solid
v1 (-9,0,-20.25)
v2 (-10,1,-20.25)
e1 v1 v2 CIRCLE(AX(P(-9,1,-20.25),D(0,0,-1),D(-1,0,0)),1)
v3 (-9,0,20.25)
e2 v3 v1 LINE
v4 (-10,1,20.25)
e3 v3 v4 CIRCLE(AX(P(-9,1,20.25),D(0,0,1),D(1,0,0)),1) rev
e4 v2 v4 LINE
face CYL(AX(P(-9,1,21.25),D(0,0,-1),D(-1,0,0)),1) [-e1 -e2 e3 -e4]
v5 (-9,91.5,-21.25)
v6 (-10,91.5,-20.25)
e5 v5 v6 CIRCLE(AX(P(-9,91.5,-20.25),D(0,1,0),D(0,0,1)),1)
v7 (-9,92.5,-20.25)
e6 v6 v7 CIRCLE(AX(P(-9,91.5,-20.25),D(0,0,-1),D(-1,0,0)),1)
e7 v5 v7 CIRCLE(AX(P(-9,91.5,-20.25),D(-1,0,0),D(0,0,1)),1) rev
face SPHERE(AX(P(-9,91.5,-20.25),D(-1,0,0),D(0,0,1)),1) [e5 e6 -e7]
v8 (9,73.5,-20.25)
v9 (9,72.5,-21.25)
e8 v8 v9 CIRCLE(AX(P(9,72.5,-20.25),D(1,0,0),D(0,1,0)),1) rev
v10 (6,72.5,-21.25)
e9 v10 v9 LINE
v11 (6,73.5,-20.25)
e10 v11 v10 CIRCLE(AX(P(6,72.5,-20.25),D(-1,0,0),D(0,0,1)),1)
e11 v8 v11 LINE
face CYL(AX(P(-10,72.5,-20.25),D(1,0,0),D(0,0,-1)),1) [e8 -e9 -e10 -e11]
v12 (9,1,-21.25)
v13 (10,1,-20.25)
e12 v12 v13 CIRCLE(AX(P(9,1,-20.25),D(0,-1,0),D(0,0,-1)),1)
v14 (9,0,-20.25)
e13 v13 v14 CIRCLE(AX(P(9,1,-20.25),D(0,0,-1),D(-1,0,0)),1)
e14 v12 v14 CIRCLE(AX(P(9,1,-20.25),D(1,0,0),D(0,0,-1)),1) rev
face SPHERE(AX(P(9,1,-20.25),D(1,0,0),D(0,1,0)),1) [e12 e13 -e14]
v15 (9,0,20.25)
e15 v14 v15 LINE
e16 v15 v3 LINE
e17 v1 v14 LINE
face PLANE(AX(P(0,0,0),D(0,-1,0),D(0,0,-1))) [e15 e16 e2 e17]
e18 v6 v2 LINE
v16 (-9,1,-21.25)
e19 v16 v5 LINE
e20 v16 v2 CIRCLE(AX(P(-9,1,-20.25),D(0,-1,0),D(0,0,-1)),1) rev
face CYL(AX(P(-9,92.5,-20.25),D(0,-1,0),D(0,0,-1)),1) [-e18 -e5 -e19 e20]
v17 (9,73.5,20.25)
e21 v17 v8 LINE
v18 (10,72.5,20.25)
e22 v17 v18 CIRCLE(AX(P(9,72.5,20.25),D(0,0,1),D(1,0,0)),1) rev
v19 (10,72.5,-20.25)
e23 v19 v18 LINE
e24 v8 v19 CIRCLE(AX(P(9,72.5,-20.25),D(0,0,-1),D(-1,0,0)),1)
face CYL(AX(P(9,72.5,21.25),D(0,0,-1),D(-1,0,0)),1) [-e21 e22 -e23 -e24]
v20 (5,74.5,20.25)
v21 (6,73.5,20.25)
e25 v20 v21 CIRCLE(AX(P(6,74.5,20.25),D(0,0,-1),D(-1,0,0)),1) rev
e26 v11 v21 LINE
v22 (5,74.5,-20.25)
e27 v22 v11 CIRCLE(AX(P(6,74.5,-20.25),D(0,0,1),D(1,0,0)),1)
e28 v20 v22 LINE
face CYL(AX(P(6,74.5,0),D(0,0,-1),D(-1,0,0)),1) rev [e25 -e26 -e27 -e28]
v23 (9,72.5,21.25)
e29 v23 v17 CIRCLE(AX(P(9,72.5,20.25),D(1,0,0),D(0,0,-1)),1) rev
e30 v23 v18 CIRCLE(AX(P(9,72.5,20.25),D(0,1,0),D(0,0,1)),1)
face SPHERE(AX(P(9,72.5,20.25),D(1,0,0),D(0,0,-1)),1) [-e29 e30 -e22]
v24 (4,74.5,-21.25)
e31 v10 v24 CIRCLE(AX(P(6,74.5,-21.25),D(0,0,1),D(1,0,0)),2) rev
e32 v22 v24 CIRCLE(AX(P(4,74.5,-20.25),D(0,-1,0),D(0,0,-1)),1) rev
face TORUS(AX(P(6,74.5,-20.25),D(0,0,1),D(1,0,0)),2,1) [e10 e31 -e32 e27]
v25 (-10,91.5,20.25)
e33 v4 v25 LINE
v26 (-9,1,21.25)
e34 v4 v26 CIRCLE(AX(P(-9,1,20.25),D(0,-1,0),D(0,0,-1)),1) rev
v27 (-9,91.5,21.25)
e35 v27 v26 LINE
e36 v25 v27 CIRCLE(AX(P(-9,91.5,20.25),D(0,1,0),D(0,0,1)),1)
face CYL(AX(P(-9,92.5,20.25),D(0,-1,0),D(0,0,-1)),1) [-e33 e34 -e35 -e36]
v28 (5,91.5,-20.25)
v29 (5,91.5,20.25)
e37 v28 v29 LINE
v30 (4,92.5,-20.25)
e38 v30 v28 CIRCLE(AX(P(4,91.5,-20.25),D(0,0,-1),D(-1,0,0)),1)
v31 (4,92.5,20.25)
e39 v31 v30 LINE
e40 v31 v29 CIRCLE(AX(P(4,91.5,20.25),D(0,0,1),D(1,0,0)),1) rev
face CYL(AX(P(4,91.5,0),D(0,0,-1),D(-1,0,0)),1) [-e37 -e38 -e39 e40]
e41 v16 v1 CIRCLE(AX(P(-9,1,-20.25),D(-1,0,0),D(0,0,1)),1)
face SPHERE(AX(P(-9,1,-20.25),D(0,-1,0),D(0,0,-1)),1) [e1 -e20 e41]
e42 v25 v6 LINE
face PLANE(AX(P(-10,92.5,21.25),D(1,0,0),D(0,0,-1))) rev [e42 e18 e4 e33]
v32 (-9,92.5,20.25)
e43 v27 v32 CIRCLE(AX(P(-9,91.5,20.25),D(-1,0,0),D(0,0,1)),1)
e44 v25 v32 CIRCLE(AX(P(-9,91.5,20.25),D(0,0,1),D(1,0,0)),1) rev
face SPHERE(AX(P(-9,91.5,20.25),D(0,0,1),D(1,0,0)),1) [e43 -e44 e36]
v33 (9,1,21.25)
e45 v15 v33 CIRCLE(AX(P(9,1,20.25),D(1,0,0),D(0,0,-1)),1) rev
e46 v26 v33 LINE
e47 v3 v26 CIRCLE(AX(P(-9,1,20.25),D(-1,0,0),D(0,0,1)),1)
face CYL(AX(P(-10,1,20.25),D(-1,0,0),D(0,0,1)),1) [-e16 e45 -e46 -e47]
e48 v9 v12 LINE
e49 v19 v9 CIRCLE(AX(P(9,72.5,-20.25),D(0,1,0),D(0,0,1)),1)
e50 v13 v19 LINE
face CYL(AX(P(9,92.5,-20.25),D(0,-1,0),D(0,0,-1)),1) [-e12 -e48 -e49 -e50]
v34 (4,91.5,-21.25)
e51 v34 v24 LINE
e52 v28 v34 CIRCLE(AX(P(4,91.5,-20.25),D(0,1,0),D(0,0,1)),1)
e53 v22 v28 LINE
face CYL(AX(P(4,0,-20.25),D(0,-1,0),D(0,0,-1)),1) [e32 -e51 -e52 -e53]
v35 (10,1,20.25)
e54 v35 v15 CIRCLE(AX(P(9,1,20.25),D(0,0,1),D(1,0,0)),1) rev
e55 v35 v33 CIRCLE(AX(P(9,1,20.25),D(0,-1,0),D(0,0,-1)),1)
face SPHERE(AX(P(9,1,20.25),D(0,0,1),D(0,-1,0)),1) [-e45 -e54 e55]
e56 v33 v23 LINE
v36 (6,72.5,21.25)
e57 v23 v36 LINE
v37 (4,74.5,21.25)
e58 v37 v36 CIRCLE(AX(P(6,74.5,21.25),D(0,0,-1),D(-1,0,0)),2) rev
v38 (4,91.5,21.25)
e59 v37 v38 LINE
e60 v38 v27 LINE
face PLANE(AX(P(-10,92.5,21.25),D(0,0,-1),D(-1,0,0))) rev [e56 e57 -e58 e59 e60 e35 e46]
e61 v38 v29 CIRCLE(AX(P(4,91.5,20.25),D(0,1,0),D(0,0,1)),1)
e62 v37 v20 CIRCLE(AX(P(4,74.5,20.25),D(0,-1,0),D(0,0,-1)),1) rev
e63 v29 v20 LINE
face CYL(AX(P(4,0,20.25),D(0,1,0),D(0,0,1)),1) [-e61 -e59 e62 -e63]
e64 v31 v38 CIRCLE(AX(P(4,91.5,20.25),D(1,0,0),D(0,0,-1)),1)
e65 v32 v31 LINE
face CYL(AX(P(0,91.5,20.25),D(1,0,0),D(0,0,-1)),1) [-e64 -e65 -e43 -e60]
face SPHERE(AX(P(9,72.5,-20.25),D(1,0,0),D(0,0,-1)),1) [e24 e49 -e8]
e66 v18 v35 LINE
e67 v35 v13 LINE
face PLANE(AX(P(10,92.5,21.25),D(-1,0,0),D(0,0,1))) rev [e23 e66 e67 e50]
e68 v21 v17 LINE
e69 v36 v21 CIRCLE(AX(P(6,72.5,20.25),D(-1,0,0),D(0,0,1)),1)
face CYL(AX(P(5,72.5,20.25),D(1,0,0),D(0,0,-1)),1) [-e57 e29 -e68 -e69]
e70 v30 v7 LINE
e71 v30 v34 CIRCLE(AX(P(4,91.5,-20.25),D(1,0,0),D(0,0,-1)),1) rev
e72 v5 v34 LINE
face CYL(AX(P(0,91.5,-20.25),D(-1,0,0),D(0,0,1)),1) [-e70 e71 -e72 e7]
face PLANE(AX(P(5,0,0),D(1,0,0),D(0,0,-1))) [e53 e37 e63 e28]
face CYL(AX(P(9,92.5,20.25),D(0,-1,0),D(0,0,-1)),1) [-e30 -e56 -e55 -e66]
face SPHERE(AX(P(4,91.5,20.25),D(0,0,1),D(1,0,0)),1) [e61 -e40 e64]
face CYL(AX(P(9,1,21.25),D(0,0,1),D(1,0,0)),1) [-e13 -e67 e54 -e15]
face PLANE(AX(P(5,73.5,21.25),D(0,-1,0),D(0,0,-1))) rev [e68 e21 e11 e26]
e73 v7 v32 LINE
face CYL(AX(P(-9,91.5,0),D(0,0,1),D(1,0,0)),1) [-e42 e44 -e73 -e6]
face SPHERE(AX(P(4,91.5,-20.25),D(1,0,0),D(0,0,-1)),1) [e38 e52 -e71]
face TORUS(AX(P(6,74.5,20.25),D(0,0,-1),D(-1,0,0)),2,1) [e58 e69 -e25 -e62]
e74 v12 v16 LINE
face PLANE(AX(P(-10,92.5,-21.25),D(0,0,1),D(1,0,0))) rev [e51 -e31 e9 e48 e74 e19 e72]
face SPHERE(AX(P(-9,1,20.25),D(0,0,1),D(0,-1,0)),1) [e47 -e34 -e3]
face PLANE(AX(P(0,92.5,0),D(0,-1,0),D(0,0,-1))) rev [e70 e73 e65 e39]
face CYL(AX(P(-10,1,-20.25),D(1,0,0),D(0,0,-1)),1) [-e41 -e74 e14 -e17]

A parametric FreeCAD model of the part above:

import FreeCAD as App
import Part
import Sketcher

V = App.Vector

doc = App.newDocument("Part")
body = doc.addObject("PartDesign::Body", "Body")

sketch1 = doc.addObject("Sketcher::SketchObject", "Sketch")
body.addObject(sketch1)
sketch1.AttachmentSupport = (doc.XZ_Plane, [""])
sketch1.MapMode = "FlatFace"
sketch1.addGeometry(Part.LineSegment(V(-10, -21, 0), V(-10, 21, 0)), False)
sketch1.addGeometry(Part.LineSegment(V(-10, 21, 0), V(10, 21, 0)), False)
sketch1.addGeometry(Part.LineSegment(V(10, 21, 0), V(10, -21, 0)), False)
sketch1.addGeometry(Part.LineSegment(V(10, -21, 0), V(-10, -21, 0)), False)
sketch1.addConstraint(Sketcher.Constraint("Coincident", 0, 2, 1, 1))
sketch1.addConstraint(Sketcher.Constraint("Coincident", 1, 2, 2, 1))
sketch1.addConstraint(Sketcher.Constraint("Coincident", 2, 2, 3, 1))
sketch1.addConstraint(Sketcher.Constraint("Coincident", 3, 2, 0, 1))
sketch1.addConstraint(Sketcher.Constraint("Vertical", 0))
sketch1.addConstraint(Sketcher.Constraint("Horizontal", 1))
sketch1.addConstraint(Sketcher.Constraint("Vertical", 2))
sketch1.addConstraint(Sketcher.Constraint("Horizontal", 3))
sketch1.addConstraint(Sketcher.Constraint("Symmetric", 0, 2, 2, 2, -1, 1))
sketch1.addConstraint(Sketcher.Constraint("DistanceX", 1, 1, 1, 2, 20.0))
sketch1.addConstraint(Sketcher.Constraint("DistanceY", 0, 1, 0, 2, 42.5))
pad1 = doc.addObject("PartDesign::Pad", "Pad")
body.addObject(pad1)
pad1.Profile = sketch1
pad1.Length = 92.5
pad1.Reversed = True

sketch2 = doc.addObject("Sketcher::SketchObject", "Sketch001")
body.addObject(sketch2)
sketch2.AttachmentSupport = (doc.YZ_Plane, [""])
sketch2.MapMode = "FlatFace"
sketch2.AttachmentOffset = App.Placement(V(0, 0, 10), App.Rotation())
sketch2.addGeometry(Part.LineSegment(V(92, 21, 0), V(74, 21, 0)), False)
sketch2.addGeometry(Part.LineSegment(V(74, 21, 0), V(74, -21, 0)), False)
sketch2.addGeometry(Part.LineSegment(V(74, -21, 0), V(92, -21, 0)), False)
sketch2.addGeometry(Part.LineSegment(V(92, -21, 0), V(92, 21, 0)), False)
sketch2.addConstraint(Sketcher.Constraint("Coincident", 0, 2, 1, 1))
sketch2.addConstraint(Sketcher.Constraint("Coincident", 1, 2, 2, 1))
sketch2.addConstraint(Sketcher.Constraint("Coincident", 2, 2, 3, 1))
sketch2.addConstraint(Sketcher.Constraint("Coincident", 3, 2, 0, 1))
sketch2.addConstraint(Sketcher.Constraint("Horizontal", 0))
sketch2.addConstraint(Sketcher.Constraint("Vertical", 1))
sketch2.addConstraint(Sketcher.Constraint("Horizontal", 2))
sketch2.addConstraint(Sketcher.Constraint("Vertical", 3))
sketch2.addConstraint(Sketcher.Constraint("DistanceX", 0, 2, 0, 1, 19.0))
sketch2.addConstraint(Sketcher.Constraint("DistanceY", 1, 2, 1, 1, 42.5))
sketch2.addConstraint(Sketcher.Constraint("DistanceX", -1, 1, 0, 2, 73.5))
sketch2.addConstraint(Sketcher.Constraint("DistanceY", -1, 1, 0, 2, 21.25))
pocket1 = doc.addObject("PartDesign::Pocket", "Pocket")
body.addObject(pocket1)
pocket1.Profile = sketch2
pocket1.Length = 5
doc.recompute()

fillet = doc.addObject("PartDesign::Fillet", "Fillet")
body.addObject(fillet)
fillet.Base = (pocket1, ["Edge1"])
fillet.UseAllEdges = True
fillet.Radius = 1

doc.recompute()
